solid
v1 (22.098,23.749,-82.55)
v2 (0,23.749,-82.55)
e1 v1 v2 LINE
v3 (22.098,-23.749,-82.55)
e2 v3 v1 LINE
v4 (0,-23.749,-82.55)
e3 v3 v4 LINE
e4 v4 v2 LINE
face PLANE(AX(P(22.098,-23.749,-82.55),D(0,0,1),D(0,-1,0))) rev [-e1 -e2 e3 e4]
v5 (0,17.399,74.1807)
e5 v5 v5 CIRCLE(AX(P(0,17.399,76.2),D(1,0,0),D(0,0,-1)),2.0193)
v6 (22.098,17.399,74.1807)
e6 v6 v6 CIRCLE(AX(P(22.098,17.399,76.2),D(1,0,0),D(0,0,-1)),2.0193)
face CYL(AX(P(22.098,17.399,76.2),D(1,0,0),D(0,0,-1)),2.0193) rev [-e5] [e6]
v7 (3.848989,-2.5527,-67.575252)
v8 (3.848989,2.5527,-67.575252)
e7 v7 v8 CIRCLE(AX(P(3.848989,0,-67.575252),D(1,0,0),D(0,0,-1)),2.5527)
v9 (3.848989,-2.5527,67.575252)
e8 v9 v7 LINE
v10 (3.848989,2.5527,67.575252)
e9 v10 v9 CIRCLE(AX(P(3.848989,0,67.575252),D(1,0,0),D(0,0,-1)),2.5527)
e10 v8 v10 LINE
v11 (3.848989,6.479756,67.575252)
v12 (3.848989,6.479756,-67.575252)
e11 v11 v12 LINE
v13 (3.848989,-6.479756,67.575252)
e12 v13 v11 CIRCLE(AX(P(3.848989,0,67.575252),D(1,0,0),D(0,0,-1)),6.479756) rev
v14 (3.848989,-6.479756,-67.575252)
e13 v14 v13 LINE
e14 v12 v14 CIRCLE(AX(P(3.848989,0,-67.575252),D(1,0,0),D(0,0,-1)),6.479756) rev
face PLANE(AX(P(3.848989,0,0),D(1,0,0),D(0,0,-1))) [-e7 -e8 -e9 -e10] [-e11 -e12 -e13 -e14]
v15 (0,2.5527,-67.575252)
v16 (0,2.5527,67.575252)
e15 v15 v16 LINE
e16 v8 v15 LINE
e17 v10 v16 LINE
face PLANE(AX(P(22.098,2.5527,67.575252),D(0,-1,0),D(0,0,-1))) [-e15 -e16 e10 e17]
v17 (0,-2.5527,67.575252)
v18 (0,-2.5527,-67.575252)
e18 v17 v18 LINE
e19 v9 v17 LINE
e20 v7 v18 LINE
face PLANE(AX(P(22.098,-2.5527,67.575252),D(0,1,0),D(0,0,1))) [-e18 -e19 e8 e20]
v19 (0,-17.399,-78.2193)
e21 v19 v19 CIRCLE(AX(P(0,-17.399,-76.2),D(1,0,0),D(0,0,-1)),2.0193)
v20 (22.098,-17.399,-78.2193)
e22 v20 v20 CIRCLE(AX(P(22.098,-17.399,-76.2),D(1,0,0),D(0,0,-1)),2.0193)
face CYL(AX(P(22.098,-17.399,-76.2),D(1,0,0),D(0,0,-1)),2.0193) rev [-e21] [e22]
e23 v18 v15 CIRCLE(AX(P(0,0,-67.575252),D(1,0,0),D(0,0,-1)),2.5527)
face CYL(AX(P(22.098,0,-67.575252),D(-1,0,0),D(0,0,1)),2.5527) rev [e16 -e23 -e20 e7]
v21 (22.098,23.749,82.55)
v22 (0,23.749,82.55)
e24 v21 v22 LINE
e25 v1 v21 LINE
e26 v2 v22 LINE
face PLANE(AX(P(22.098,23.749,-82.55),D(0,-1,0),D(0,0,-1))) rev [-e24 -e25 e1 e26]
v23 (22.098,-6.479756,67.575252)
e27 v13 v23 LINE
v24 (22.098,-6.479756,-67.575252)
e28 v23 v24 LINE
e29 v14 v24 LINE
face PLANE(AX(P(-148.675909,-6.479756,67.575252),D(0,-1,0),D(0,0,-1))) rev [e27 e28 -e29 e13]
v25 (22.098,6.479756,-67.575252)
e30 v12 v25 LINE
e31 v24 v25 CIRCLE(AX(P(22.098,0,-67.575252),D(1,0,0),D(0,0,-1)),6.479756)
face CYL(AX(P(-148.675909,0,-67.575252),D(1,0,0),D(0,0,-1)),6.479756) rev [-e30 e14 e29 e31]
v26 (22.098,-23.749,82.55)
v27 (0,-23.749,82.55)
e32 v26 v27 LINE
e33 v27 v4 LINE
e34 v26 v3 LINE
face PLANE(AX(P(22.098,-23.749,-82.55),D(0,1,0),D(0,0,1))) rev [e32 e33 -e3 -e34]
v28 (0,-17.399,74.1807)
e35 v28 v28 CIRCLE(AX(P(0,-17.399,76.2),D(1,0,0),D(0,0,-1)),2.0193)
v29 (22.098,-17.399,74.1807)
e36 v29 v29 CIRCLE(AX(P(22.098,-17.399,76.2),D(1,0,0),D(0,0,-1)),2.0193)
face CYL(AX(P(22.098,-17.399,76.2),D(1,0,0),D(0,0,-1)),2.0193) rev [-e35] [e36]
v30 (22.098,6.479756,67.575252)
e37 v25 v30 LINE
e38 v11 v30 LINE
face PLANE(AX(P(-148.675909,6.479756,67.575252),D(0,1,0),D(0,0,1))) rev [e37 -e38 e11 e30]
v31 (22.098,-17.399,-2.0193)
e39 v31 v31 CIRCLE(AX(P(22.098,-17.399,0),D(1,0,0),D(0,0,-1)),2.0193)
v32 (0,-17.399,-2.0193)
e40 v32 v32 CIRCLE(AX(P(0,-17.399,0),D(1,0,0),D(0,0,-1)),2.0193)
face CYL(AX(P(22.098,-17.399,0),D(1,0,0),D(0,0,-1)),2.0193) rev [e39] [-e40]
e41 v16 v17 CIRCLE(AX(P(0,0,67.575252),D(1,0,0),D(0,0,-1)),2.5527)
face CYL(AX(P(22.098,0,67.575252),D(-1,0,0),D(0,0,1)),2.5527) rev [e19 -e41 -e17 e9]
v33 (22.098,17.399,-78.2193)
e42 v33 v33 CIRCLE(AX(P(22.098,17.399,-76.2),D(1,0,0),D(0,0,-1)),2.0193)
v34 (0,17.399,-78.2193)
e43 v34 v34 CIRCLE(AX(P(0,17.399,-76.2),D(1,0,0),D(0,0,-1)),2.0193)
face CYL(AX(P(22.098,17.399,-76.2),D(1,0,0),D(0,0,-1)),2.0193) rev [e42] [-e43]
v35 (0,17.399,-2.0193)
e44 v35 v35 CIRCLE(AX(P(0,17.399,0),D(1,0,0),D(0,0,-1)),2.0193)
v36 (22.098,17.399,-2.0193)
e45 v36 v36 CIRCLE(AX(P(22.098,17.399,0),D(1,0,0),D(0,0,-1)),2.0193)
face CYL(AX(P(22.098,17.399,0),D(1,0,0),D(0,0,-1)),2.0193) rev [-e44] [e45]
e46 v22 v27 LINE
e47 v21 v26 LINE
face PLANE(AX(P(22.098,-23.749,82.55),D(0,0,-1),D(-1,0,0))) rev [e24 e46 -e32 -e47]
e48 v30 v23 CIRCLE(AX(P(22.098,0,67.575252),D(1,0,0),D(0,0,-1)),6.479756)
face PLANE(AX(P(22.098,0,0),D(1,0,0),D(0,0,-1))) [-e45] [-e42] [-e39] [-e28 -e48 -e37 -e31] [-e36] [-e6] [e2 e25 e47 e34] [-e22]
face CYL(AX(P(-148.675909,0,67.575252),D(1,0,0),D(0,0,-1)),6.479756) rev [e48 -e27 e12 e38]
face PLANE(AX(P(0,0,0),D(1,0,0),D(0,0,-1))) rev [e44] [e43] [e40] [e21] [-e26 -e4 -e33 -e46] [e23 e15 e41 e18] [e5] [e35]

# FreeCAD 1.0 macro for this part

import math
import FreeCAD as App
import Part
import Sketcher

V = App.Vector
Q = App.Units.Quantity

doc = App.newDocument("Part")
body = doc.addObject("PartDesign::Body", "Body")

sketch1 = doc.addObject("Sketcher::SketchObject", "Sketch")
body.addObject(sketch1)
sketch1.AttachmentSupport = (doc.YZ_Plane, [""])
sketch1.MapMode = "FlatFace"
sketch1.addGeometry([
    Part.LineSegment(V(23.7, 82.5, 0), V(-23.7, 82.5, 0)),
    Part.LineSegment(V(-23.7, 82.5, 0), V(-23.7, -82.5, 0)),
    Part.LineSegment(V(-23.7, -82.5, 0), V(23.7, -82.5, 0)),
    Part.LineSegment(V(23.7, -82.5, 0), V(23.7, 82.5, 0)),
    Part.ArcOfCircle(Part.Circle(V(0, 67.6, 0), V(0, 0, 1), 2.6), math.radians(0), math.radians(180)),
    Part.LineSegment(V(2.6, 67.6, 0), V(2.6, -67.6, 0)),
    Part.ArcOfCircle(Part.Circle(V(0, -67.6, 0), V(0, 0, 1), 2.6), math.radians(180), math.radians(360)),
    Part.LineSegment(V(-2.6, -67.6, 0), V(-2.6, 67.6, 0)),
], False)
sketch1.addConstraint([
    Sketcher.Constraint("Coincident", 0, 2, 1, 1),
    Sketcher.Constraint("Coincident", 1, 2, 2, 1),
    Sketcher.Constraint("Coincident", 2, 2, 3, 1),
    Sketcher.Constraint("Coincident", 3, 2, 0, 1),
    Sketcher.Constraint("Tangent", 4, 1, 5, 1),
    Sketcher.Constraint("Tangent", 5, 2, 6, 2),
    Sketcher.Constraint("Tangent", 6, 1, 7, 1),
    Sketcher.Constraint("Tangent", 7, 2, 4, 2),
    Sketcher.Constraint("Horizontal", 0),
    Sketcher.Constraint("Vertical", 1),
    Sketcher.Constraint("Horizontal", 2),
    Sketcher.Constraint("Vertical", 3),
    Sketcher.Constraint("Vertical", 5),
    Sketcher.Constraint("Vertical", 7),
    Sketcher.Constraint("Symmetric", 4, 3, 6, 3, -1, 1),
    Sketcher.Constraint("Symmetric", 0, 2, 2, 2, -1, 1),
    Sketcher.Constraint("DistanceY", 1, 2, 1, 1, Q("6.5 in")),
    Sketcher.Constraint("DistanceX", 0, 2, 0, 1, Q("1.87 in")),
    Sketcher.Constraint("Radius", 4, Q("0.1005 in")),
    Sketcher.Constraint("DistanceY", 5, 2, 5, 1, Q("135.150504 mm")),
])
pad1 = doc.addObject("PartDesign::Pad", "Pad")
body.addObject(pad1)
pad1.Profile = sketch1
pad1.Length = Q("0.87 in")

sketch2 = doc.addObject("Sketcher::SketchObject", "Sketch001")
body.addObject(sketch2)
sketch2.AttachmentSupport = (doc.YZ_Plane, [""])
sketch2.MapMode = "FlatFace"
sketch2.AttachmentOffset = App.Placement(V(0, 0, 0.87 * 25.4), App.Rotation())
sketch2.addGeometry([
    Part.LineSegment(V(6, -68, 0), V(6, 68, 0)),
    Part.ArcOfCircle(Part.Circle(V(0, 68, 0), V(0, 0, 1), 6), math.radians(0), math.radians(180)),
    Part.LineSegment(V(-6, 68, 0), V(-6, -68, 0)),
    Part.ArcOfCircle(Part.Circle(V(0, -68, 0), V(0, 0, 1), 6), math.radians(180), math.radians(360)),
], False)
sketch2.addConstraint([
    Sketcher.Constraint("Tangent", 0, 2, 1, 1),
    Sketcher.Constraint("Tangent", 1, 2, 2, 1),
    Sketcher.Constraint("Tangent", 2, 2, 3, 1),
    Sketcher.Constraint("Tangent", 3, 2, 0, 1),
    Sketcher.Constraint("Vertical", 0),
    Sketcher.Constraint("Vertical", 2),
    Sketcher.Constraint("Symmetric", 1, 3, 3, 3, -1, 1),
    Sketcher.Constraint("Radius", 1, Q("6.479756 mm")),
    Sketcher.Constraint("DistanceY", 0, 1, 0, 2, Q("135.150504 mm")),
])
pocket1 = doc.addObject("PartDesign::Pocket", "Pocket")
body.addObject(pocket1)
pocket1.Profile = sketch2
pocket1.Length = 18.249011

sketch3 = doc.addObject("Sketcher::SketchObject", "Sketch002")
body.addObject(sketch3)
sketch3.AttachmentSupport = (doc.YZ_Plane, [""])
sketch3.MapMode = "FlatFace"
sketch3.AttachmentOffset = App.Placement(V(0, 0, 0.87 * 25.4), App.Rotation())
sketch3.addGeometry([
    Part.Circle(V(17.4, 76.2, 0), V(0, 0, 1), 2),
    Part.Circle(V(-17.4, 76.2, 0), V(0, 0, 1), 2),
    Part.Circle(V(-17.4, 0, 0), V(0, 0, 1), 2),
    Part.Circle(V(-17.4, -76.2, 0), V(0, 0, 1), 2),
    Part.Circle(V(17.4, -76.2, 0), V(0, 0, 1), 2),
    Part.Circle(V(17.4, 0, 0), V(0, 0, 1), 2),
], False)
sketch3.addConstraint([
    Sketcher.Constraint("Equal", 0, 1),
    Sketcher.Constraint("Equal", 1, 2),
    Sketcher.Constraint("Equal", 2, 3),
    Sketcher.Constraint("Equal", 3, 4),
    Sketcher.Constraint("Equal", 4, 5),
    Sketcher.Constraint("Symmetric", 0, 3, 3, 3, -1, 1),
    Sketcher.Constraint("Symmetric", 1, 3, 4, 3, -1, 1),
    Sketcher.Constraint("Symmetric", 2, 3, 5, 3, -1, 1),
    Sketcher.Constraint("Symmetric", 0, 3, 1, 3, -2),
    Sketcher.Constraint("PointOnObject", 2, 3, -1),
    Sketcher.Constraint("Vertical", 1, 3, 2, 3),
    Sketcher.Constraint("Diameter", 0, Q("0.159 in")),
    Sketcher.Constraint("DistanceY", -1, 1, 0, 3, Q("3 in")),
    Sketcher.Constraint("DistanceX", 1, 3, 0, 3, Q("1.37 in")),
])
doc.recompute()
hole = doc.addObject("PartDesign::Hole", "Hole")
body.addObject(hole)
hole.Profile = sketch3
hole.ThreadType = "None"
hole.Diameter = Q("0.159 in")
hole.DepthType = "ThroughAll"

doc.recompute()
